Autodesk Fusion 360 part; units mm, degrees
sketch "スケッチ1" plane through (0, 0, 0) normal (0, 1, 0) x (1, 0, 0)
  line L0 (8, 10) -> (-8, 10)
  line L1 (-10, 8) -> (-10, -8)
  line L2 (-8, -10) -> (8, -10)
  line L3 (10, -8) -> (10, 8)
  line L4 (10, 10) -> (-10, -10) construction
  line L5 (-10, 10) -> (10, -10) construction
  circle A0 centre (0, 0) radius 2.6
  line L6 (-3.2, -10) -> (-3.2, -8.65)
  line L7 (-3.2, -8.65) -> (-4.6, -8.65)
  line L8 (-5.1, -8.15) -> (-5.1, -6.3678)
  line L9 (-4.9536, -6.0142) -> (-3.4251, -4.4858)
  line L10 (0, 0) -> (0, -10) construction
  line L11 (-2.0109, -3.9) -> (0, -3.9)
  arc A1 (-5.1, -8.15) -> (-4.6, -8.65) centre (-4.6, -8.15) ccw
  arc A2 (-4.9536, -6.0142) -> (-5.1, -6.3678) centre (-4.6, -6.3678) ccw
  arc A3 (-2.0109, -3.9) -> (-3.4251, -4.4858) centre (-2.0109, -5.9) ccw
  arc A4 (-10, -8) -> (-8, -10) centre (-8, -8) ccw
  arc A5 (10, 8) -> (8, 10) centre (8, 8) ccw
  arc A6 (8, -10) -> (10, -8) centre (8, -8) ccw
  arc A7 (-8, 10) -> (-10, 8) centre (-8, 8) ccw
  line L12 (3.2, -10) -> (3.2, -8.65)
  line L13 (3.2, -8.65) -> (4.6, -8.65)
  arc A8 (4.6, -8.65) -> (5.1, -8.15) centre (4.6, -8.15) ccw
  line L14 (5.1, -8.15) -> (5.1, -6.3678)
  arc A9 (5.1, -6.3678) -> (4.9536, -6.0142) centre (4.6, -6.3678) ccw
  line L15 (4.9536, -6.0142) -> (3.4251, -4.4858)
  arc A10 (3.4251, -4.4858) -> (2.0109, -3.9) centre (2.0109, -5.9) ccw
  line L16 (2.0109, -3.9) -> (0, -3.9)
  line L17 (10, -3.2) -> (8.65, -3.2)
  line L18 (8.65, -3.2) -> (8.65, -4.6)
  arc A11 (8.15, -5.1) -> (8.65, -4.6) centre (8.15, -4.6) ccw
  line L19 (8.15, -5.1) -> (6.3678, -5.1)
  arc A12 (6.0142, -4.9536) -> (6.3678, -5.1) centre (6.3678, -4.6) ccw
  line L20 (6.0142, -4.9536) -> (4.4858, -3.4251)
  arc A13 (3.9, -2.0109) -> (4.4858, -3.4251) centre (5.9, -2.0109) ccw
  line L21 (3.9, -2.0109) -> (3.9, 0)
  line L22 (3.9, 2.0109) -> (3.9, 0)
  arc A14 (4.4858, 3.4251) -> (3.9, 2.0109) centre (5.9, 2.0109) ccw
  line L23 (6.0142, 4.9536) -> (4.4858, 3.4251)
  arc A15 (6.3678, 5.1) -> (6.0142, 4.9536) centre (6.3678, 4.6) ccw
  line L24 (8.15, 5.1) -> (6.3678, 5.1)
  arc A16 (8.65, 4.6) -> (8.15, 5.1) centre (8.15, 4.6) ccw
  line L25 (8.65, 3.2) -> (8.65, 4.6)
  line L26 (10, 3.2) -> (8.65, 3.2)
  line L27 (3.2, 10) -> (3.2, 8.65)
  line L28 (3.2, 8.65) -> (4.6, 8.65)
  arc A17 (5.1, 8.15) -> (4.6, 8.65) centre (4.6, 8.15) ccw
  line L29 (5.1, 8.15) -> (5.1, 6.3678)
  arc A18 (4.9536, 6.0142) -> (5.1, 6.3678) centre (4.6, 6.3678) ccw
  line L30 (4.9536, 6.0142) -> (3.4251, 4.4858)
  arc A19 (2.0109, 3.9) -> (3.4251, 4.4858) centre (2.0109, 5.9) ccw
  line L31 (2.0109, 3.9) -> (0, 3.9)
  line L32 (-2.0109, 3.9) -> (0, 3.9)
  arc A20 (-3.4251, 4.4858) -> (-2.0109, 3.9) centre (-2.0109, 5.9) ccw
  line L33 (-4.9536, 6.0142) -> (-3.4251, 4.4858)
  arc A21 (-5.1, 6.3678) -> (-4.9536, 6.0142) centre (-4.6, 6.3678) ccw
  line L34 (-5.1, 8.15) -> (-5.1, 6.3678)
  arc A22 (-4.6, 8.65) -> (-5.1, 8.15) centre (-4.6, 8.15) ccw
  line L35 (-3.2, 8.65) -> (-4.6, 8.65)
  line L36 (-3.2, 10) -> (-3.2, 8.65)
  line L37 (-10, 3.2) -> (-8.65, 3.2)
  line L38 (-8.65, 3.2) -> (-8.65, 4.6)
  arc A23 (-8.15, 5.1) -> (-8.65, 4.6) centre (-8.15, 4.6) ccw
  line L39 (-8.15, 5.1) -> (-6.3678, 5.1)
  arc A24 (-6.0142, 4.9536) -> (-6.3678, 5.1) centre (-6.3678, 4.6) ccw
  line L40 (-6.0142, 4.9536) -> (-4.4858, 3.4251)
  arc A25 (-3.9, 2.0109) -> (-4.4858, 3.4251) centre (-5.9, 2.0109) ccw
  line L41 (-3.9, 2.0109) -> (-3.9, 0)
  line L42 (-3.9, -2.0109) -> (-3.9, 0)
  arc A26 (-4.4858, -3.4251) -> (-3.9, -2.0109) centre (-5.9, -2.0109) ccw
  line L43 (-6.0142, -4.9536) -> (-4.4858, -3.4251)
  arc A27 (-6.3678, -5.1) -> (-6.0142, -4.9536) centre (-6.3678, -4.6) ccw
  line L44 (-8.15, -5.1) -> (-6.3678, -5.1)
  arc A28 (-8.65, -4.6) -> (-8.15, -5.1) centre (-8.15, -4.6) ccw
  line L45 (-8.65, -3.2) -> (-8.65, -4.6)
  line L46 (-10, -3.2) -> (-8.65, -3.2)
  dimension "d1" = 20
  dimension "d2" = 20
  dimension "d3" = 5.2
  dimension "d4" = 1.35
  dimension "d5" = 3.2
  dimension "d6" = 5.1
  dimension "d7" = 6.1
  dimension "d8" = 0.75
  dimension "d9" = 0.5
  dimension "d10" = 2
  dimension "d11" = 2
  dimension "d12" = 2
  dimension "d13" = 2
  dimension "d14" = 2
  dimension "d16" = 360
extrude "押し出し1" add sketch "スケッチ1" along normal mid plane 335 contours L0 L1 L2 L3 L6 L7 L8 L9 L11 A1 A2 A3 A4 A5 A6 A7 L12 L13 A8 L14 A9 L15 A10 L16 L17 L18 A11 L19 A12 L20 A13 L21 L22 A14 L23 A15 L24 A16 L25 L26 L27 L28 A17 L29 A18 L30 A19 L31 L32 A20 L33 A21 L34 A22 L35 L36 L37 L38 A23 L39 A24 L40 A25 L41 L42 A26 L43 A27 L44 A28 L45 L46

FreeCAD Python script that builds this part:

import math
import FreeCAD as App
import Part
import Sketcher

V = App.Vector

doc = App.newDocument("Part")
body = doc.addObject("PartDesign::Body", "Body")

# Sketch on XZ plane
sketch1 = body.newObject("Sketcher::SketchObject", "Sketch")
sketch1.AttachmentSupport = (doc.getObject("XZ_Plane"), [""])
sketch1.MapMode = "FlatFace"
sketch1.addGeometry(Part.ArcOfCircle(Part.Circle(V(8, -8, 0), V(0, 0, 1), 2), math.radians(-90), math.radians(0)), False)
sketch1.addGeometry(Part.LineSegment(V(8, -10, 0), V(3.2, -10, 0)), False)
sketch1.addGeometry(Part.LineSegment(V(3.2, -10, 0), V(3.2, -8.65, 0)), False)
sketch1.addGeometry(Part.LineSegment(V(3.2, -8.65, 0), V(4.6, -8.65, 0)), False)
sketch1.addGeometry(Part.ArcOfCircle(Part.Circle(V(4.6, -8.15, 0), V(0, 0, 1), 0.5), math.radians(-90), math.radians(0)), False)
sketch1.addGeometry(Part.LineSegment(V(5.1, -8.15, 0), V(5.1, -6.37, 0)), False)
sketch1.addGeometry(Part.ArcOfCircle(Part.Circle(V(4.6, -6.37, 0), V(0, 0, 1), 0.5), math.radians(0), math.radians(45)), False)
sketch1.addGeometry(Part.LineSegment(V(4.95, -6.01, 0), V(3.43, -4.49, 0)), False)
sketch1.addGeometry(Part.ArcOfCircle(Part.Circle(V(2.01, -5.9, 0), V(0, 0, 1), 2), math.radians(45), math.radians(90)), False)
sketch1.addGeometry(Part.LineSegment(V(2.01, -3.9, 0), V(-2.01, -3.9, 0)), False)
sketch1.addGeometry(Part.ArcOfCircle(Part.Circle(V(-2.01, -5.9, 0), V(0, 0, 1), 2), math.radians(90), math.radians(135)), False)
sketch1.addGeometry(Part.LineSegment(V(-3.43, -4.49, 0), V(-4.95, -6.01, 0)), False)
sketch1.addGeometry(Part.ArcOfCircle(Part.Circle(V(-4.6, -6.37, 0), V(0, 0, 1), 0.5), math.radians(135), math.radians(180)), False)
sketch1.addGeometry(Part.LineSegment(V(-5.1, -6.37, 0), V(-5.1, -8.15, 0)), False)
sketch1.addGeometry(Part.ArcOfCircle(Part.Circle(V(-4.6, -8.15, 0), V(0, 0, 1), 0.5), math.radians(180), math.radians(270)), False)
sketch1.addGeometry(Part.LineSegment(V(-4.6, -8.65, 0), V(-3.2, -8.65, 0)), False)
sketch1.addGeometry(Part.LineSegment(V(-3.2, -8.65, 0), V(-3.2, -10, 0)), False)
sketch1.addGeometry(Part.LineSegment(V(-3.2, -10, 0), V(-8, -10, 0)), False)
sketch1.addGeometry(Part.ArcOfCircle(Part.Circle(V(-8, -8, 0), V(0, 0, 1), 2), math.radians(180), math.radians(270)), False)
sketch1.addGeometry(Part.LineSegment(V(-10, -8, 0), V(-10, -3.2, 0)), False)
sketch1.addGeometry(Part.LineSegment(V(-10, -3.2, 0), V(-8.65, -3.2, 0)), False)
sketch1.addGeometry(Part.LineSegment(V(-8.65, -3.2, 0), V(-8.65, -4.6, 0)), False)
sketch1.addGeometry(Part.ArcOfCircle(Part.Circle(V(-8.15, -4.6, 0), V(0, 0, 1), 0.5), math.radians(180), math.radians(270)), False)
sketch1.addGeometry(Part.LineSegment(V(-8.15, -5.1, 0), V(-6.37, -5.1, 0)), False)
sketch1.addGeometry(Part.ArcOfCircle(Part.Circle(V(-6.37, -4.6, 0), V(0, 0, 1), 0.5), math.radians(-90), math.radians(-45)), False)
sketch1.addGeometry(Part.LineSegment(V(-6.01, -4.95, 0), V(-4.49, -3.43, 0)), False)
sketch1.addGeometry(Part.ArcOfCircle(Part.Circle(V(-5.9, -2.01, 0), V(0, 0, 1), 2), math.radians(-45), math.radians(0)), False)
sketch1.addGeometry(Part.LineSegment(V(-3.9, -2.01, 0), V(-3.9, 2.01, 0)), False)
sketch1.addGeometry(Part.ArcOfCircle(Part.Circle(V(-5.9, 2.01, 0), V(0, 0, 1), 2), math.radians(0), math.radians(45)), False)
sketch1.addGeometry(Part.LineSegment(V(-4.49, 3.43, 0), V(-6.01, 4.95, 0)), False)
sketch1.addGeometry(Part.ArcOfCircle(Part.Circle(V(-6.37, 4.6, 0), V(0, 0, 1), 0.5), math.radians(45), math.radians(90)), False)
sketch1.addGeometry(Part.LineSegment(V(-6.37, 5.1, 0), V(-8.15, 5.1, 0)), False)
sketch1.addGeometry(Part.ArcOfCircle(Part.Circle(V(-8.15, 4.6, 0), V(0, 0, 1), 0.5), math.radians(90), math.radians(180)), False)
sketch1.addGeometry(Part.LineSegment(V(-8.65, 4.6, 0), V(-8.65, 3.2, 0)), False)
sketch1.addGeometry(Part.LineSegment(V(-8.65, 3.2, 0), V(-10, 3.2, 0)), False)
sketch1.addGeometry(Part.LineSegment(V(-10, 3.2, 0), V(-10, 8, 0)), False)
sketch1.addGeometry(Part.ArcOfCircle(Part.Circle(V(-8, 8, 0), V(0, 0, 1), 2), math.radians(90), math.radians(180)), False)
sketch1.addGeometry(Part.LineSegment(V(-8, 10, 0), V(-3.2, 10, 0)), False)
sketch1.addGeometry(Part.LineSegment(V(-3.2, 10, 0), V(-3.2, 8.65, 0)), False)
sketch1.addGeometry(Part.LineSegment(V(-3.2, 8.65, 0), V(-4.6, 8.65, 0)), False)
sketch1.addGeometry(Part.ArcOfCircle(Part.Circle(V(-4.6, 8.15, 0), V(0, 0, 1), 0.5), math.radians(90), math.radians(180)), False)
sketch1.addGeometry(Part.LineSegment(V(-5.1, 8.15, 0), V(-5.1, 6.37, 0)), False)
sketch1.addGeometry(Part.ArcOfCircle(Part.Circle(V(-4.6, 6.37, 0), V(0, 0, 1), 0.5), math.radians(180), math.radians(225)), False)
sketch1.addGeometry(Part.LineSegment(V(-4.95, 6.01, 0), V(-3.43, 4.49, 0)), False)
sketch1.addGeometry(Part.ArcOfCircle(Part.Circle(V(-2.01, 5.9, 0), V(0, 0, 1), 2), math.radians(-135), math.radians(-90)), False)
sketch1.addGeometry(Part.LineSegment(V(-2.01, 3.9, 0), V(2.01, 3.9, 0)), False)
sketch1.addGeometry(Part.ArcOfCircle(Part.Circle(V(2.01, 5.9, 0), V(0, 0, 1), 2), math.radians(-90), math.radians(-45)), False)
sketch1.addGeometry(Part.LineSegment(V(3.43, 4.49, 0), V(4.95, 6.01, 0)), False)
sketch1.addGeometry(Part.ArcOfCircle(Part.Circle(V(4.6, 6.37, 0), V(0, 0, 1), 0.5), math.radians(-45), math.radians(0)), False)
sketch1.addGeometry(Part.LineSegment(V(5.1, 6.37, 0), V(5.1, 8.15, 0)), False)
sketch1.addGeometry(Part.ArcOfCircle(Part.Circle(V(4.6, 8.15, 0), V(0, 0, 1), 0.5), math.radians(0), math.radians(90)), False)
sketch1.addGeometry(Part.LineSegment(V(4.6, 8.65, 0), V(3.2, 8.65, 0)), False)
sketch1.addGeometry(Part.LineSegment(V(3.2, 8.65, 0), V(3.2, 10, 0)), False)
sketch1.addGeometry(Part.LineSegment(V(3.2, 10, 0), V(8, 10, 0)), False)
sketch1.addGeometry(Part.ArcOfCircle(Part.Circle(V(8, 8, 0), V(0, 0, 1), 2), math.radians(0), math.radians(90)), False)
sketch1.addGeometry(Part.LineSegment(V(10, 8, 0), V(10, 3.2, 0)), False)
sketch1.addGeometry(Part.LineSegment(V(10, 3.2, 0), V(8.65, 3.2, 0)), False)
sketch1.addGeometry(Part.LineSegment(V(8.65, 3.2, 0), V(8.65, 4.6, 0)), False)
sketch1.addGeometry(Part.ArcOfCircle(Part.Circle(V(8.15, 4.6, 0), V(0, 0, 1), 0.5), math.radians(0), math.radians(90)), False)
sketch1.addGeometry(Part.LineSegment(V(8.15, 5.1, 0), V(6.37, 5.1, 0)), False)
sketch1.addGeometry(Part.ArcOfCircle(Part.Circle(V(6.37, 4.6, 0), V(0, 0, 1), 0.5), math.radians(90), math.radians(135)), False)
sketch1.addGeometry(Part.LineSegment(V(6.01, 4.95, 0), V(4.49, 3.43, 0)), False)
sketch1.addGeometry(Part.ArcOfCircle(Part.Circle(V(5.9, 2.01, 0), V(0, 0, 1), 2), math.radians(135), math.radians(180)), False)
sketch1.addGeometry(Part.LineSegment(V(3.9, 2.01, 0), V(3.9, -2.01, 0)), False)
sketch1.addGeometry(Part.ArcOfCircle(Part.Circle(V(5.9, -2.01, 0), V(0, 0, 1), 2), math.radians(180), math.radians(225)), False)
sketch1.addGeometry(Part.LineSegment(V(4.49, -3.43, 0), V(6.01, -4.95, 0)), False)
sketch1.addGeometry(Part.ArcOfCircle(Part.Circle(V(6.37, -4.6, 0), V(0, 0, 1), 0.5), math.radians(-135), math.radians(-90)), False)
sketch1.addGeometry(Part.LineSegment(V(6.37, -5.1, 0), V(8.15, -5.1, 0)), False)
sketch1.addGeometry(Part.ArcOfCircle(Part.Circle(V(8.15, -4.6, 0), V(0, 0, 1), 0.5), math.radians(-90), math.radians(0)), False)
sketch1.addGeometry(Part.LineSegment(V(8.65, -4.6, 0), V(8.65, -3.2, 0)), False)
sketch1.addGeometry(Part.LineSegment(V(8.65, -3.2, 0), V(10, -3.2, 0)), False)
sketch1.addGeometry(Part.LineSegment(V(10, -3.2, 0), V(10, -8, 0)), False)
sketch1.addGeometry(Part.Circle(V(0, 0, 0), V(0, 0, 1), 2.6), False)
sketch1.addConstraint(Sketcher.Constraint("Tangent", 0, 1, 1, 1))
sketch1.addConstraint(Sketcher.Constraint("Coincident", 1, 2, 2, 1))
sketch1.addConstraint(Sketcher.Constraint("Coincident", 2, 2, 3, 1))
sketch1.addConstraint(Sketcher.Constraint("Tangent", 3, 2, 4, 1))
sketch1.addConstraint(Sketcher.Constraint("Tangent", 4, 2, 5, 1))
sketch1.addConstraint(Sketcher.Constraint("Tangent", 5, 2, 6, 1))
sketch1.addConstraint(Sketcher.Constraint("Tangent", 6, 2, 7, 1))
sketch1.addConstraint(Sketcher.Constraint("Tangent", 7, 2, 8, 1))
sketch1.addConstraint(Sketcher.Constraint("Tangent", 8, 2, 9, 1))
sketch1.addConstraint(Sketcher.Constraint("Tangent", 9, 2, 10, 1))
sketch1.addConstraint(Sketcher.Constraint("Tangent", 10, 2, 11, 1))
sketch1.addConstraint(Sketcher.Constraint("Tangent", 11, 2, 12, 1))
sketch1.addConstraint(Sketcher.Constraint("Tangent", 12, 2, 13, 1))
sketch1.addConstraint(Sketcher.Constraint("Tangent", 13, 2, 14, 1))
sketch1.addConstraint(Sketcher.Constraint("Tangent", 14, 2, 15, 1))
sketch1.addConstraint(Sketcher.Constraint("Coincident", 15, 2, 16, 1))
sketch1.addConstraint(Sketcher.Constraint("Coincident", 16, 2, 17, 1))
sketch1.addConstraint(Sketcher.Constraint("Tangent", 17, 2, 18, 2))
sketch1.addConstraint(Sketcher.Constraint("Tangent", 18, 1, 19, 1))
sketch1.addConstraint(Sketcher.Constraint("Coincident", 19, 2, 20, 1))
sketch1.addConstraint(Sketcher.Constraint("Coincident", 20, 2, 21, 1))
sketch1.addConstraint(Sketcher.Constraint("Tangent", 21, 2, 22, 1))
sketch1.addConstraint(Sketcher.Constraint("Tangent", 22, 2, 23, 1))
sketch1.addConstraint(Sketcher.Constraint("Tangent", 23, 2, 24, 1))
sketch1.addConstraint(Sketcher.Constraint("Tangent", 24, 2, 25, 1))
sketch1.addConstraint(Sketcher.Constraint("Tangent", 25, 2, 26, 1))
sketch1.addConstraint(Sketcher.Constraint("Tangent", 26, 2, 27, 1))
sketch1.addConstraint(Sketcher.Constraint("Tangent", 27, 2, 28, 1))
sketch1.addConstraint(Sketcher.Constraint("Tangent", 28, 2, 29, 1))
sketch1.addConstraint(Sketcher.Constraint("Tangent", 29, 2, 30, 1))
sketch1.addConstraint(Sketcher.Constraint("Tangent", 30, 2, 31, 1))
sketch1.addConstraint(Sketcher.Constraint("Tangent", 31, 2, 32, 1))
sketch1.addConstraint(Sketcher.Constraint("Tangent", 32, 2, 33, 1))
sketch1.addConstraint(Sketcher.Constraint("Coincident", 33, 2, 34, 1))
sketch1.addConstraint(Sketcher.Constraint("Coincident", 34, 2, 35, 1))
sketch1.addConstraint(Sketcher.Constraint("Tangent", 35, 2, 36, 2))
sketch1.addConstraint(Sketcher.Constraint("Tangent", 36, 1, 37, 1))
sketch1.addConstraint(Sketcher.Constraint("Coincident", 37, 2, 38, 1))
sketch1.addConstraint(Sketcher.Constraint("Coincident", 38, 2, 39, 1))
sketch1.addConstraint(Sketcher.Constraint("Tangent", 39, 2, 40, 1))
sketch1.addConstraint(Sketcher.Constraint("Tangent", 40, 2, 41, 1))
sketch1.addConstraint(Sketcher.Constraint("Tangent", 41, 2, 42, 1))
sketch1.addConstraint(Sketcher.Constraint("Tangent", 42, 2, 43, 1))
sketch1.addConstraint(Sketcher.Constraint("Tangent", 43, 2, 44, 1))
sketch1.addConstraint(Sketcher.Constraint("Tangent", 44, 2, 45, 1))
sketch1.addConstraint(Sketcher.Constraint("Tangent", 45, 2, 46, 1))
sketch1.addConstraint(Sketcher.Constraint("Tangent", 46, 2, 47, 1))
sketch1.addConstraint(Sketcher.Constraint("Tangent", 47, 2, 48, 1))
sketch1.addConstraint(Sketcher.Constraint("Tangent", 48, 2, 49, 1))
sketch1.addConstraint(Sketcher.Constraint("Tangent", 49, 2, 50, 1))
sketch1.addConstraint(Sketcher.Constraint("Tangent", 50, 2, 51, 1))
sketch1.addConstraint(Sketcher.Constraint("Coincident", 51, 2, 52, 1))
sketch1.addConstraint(Sketcher.Constraint("Coincident", 52, 2, 53, 1))
sketch1.addConstraint(Sketcher.Constraint("Tangent", 53, 2, 54, 2))
sketch1.addConstraint(Sketcher.Constraint("Tangent", 54, 1, 55, 1))
sketch1.addConstraint(Sketcher.Constraint("Coincident", 55, 2, 56, 1))
sketch1.addConstraint(Sketcher.Constraint("Coincident", 56, 2, 57, 1))
sketch1.addConstraint(Sketcher.Constraint("Tangent", 57, 2, 58, 1))
sketch1.addConstraint(Sketcher.Constraint("Tangent", 58, 2, 59, 1))
sketch1.addConstraint(Sketcher.Constraint("Tangent", 59, 2, 60, 1))
sketch1.addConstraint(Sketcher.Constraint("Tangent", 60, 2, 61, 1))
sketch1.addConstraint(Sketcher.Constraint("Tangent", 61, 2, 62, 1))
sketch1.addConstraint(Sketcher.Constraint("Tangent", 62, 2, 63, 1))
sketch1.addConstraint(Sketcher.Constraint("Tangent", 63, 2, 64, 1))
sketch1.addConstraint(Sketcher.Constraint("Tangent", 64, 2, 65, 1))
sketch1.addConstraint(Sketcher.Constraint("Tangent", 65, 2, 66, 1))
sketch1.addConstraint(Sketcher.Constraint("Tangent", 66, 2, 67, 1))
sketch1.addConstraint(Sketcher.Constraint("Tangent", 67, 2, 68, 1))
sketch1.addConstraint(Sketcher.Constraint("Tangent", 68, 2, 69, 1))
sketch1.addConstraint(Sketcher.Constraint("Coincident", 69, 2, 70, 1))
sketch1.addConstraint(Sketcher.Constraint("Coincident", 70, 2, 71, 1))
sketch1.addConstraint(Sketcher.Constraint("Tangent", 71, 2, 0, 2))
sketch1.addConstraint(Sketcher.Constraint("Horizontal", 1))
sketch1.addConstraint(Sketcher.Constraint("Vertical", 2))
sketch1.addConstraint(Sketcher.Constraint("Horizontal", 3))
sketch1.addConstraint(Sketcher.Constraint("Vertical", 5))
sketch1.addConstraint(Sketcher.Constraint("Horizontal", 9))
sketch1.addConstraint(Sketcher.Constraint("Vertical", 13))
sketch1.addConstraint(Sketcher.Constraint("Horizontal", 15))
sketch1.addConstraint(Sketcher.Constraint("Vertical", 16))
sketch1.addConstraint(Sketcher.Constraint("Horizontal", 17))
sketch1.addConstraint(Sketcher.Constraint("Vertical", 19))
sketch1.addConstraint(Sketcher.Constraint("Horizontal", 20))
sketch1.addConstraint(Sketcher.Constraint("Vertical", 21))
sketch1.addConstraint(Sketcher.Constraint("Horizontal", 23))
sketch1.addConstraint(Sketcher.Constraint("Vertical", 27))
sketch1.addConstraint(Sketcher.Constraint("Horizontal", 31))
sketch1.addConstraint(Sketcher.Constraint("Vertical", 33))
sketch1.addConstraint(Sketcher.Constraint("Horizontal", 34))
sketch1.addConstraint(Sketcher.Constraint("Vertical", 35))
sketch1.addConstraint(Sketcher.Constraint("Horizontal", 37))
sketch1.addConstraint(Sketcher.Constraint("Vertical", 38))
sketch1.addConstraint(Sketcher.Constraint("Horizontal", 39))
sketch1.addConstraint(Sketcher.Constraint("Vertical", 41))
sketch1.addConstraint(Sketcher.Constraint("Horizontal", 45))
sketch1.addConstraint(Sketcher.Constraint("Vertical", 49))
sketch1.addConstraint(Sketcher.Constraint("Horizontal", 51))
sketch1.addConstraint(Sketcher.Constraint("Vertical", 52))
sketch1.addConstraint(Sketcher.Constraint("Horizontal", 53))
sketch1.addConstraint(Sketcher.Constraint("Vertical", 55))
sketch1.addConstraint(Sketcher.Constraint("Horizontal", 56))
sketch1.addConstraint(Sketcher.Constraint("Vertical", 57))
sketch1.addConstraint(Sketcher.Constraint("Horizontal", 59))
sketch1.addConstraint(Sketcher.Constraint("Vertical", 63))
sketch1.addConstraint(Sketcher.Constraint("Horizontal", 67))
sketch1.addConstraint(Sketcher.Constraint("Vertical", 69))
sketch1.addConstraint(Sketcher.Constraint("Horizontal", 70))
sketch1.addConstraint(Sketcher.Constraint("Vertical", 71))
sketch1.addConstraint(Sketcher.Constraint("Coincident", 72, 3, -1, 1))
sketch1.addConstraint(Sketcher.Constraint("Equal", 4, 6))
sketch1.addConstraint(Sketcher.Constraint("Equal", 0, 8))
sketch1.addConstraint(Sketcher.Constraint("Equal", 8, 10))
sketch1.addConstraint(Sketcher.Constraint("Equal", 6, 12))
sketch1.addConstraint(Sketcher.Constraint("Equal", 12, 14))
sketch1.addConstraint(Sketcher.Constraint("Equal", 10, 18))
sketch1.addConstraint(Sketcher.Constraint("Equal", 14, 22))
sketch1.addConstraint(Sketcher.Constraint("Equal", 22, 24))
sketch1.addConstraint(Sketcher.Constraint("Equal", 18, 26))
sketch1.addConstraint(Sketcher.Constraint("Equal", 26, 28))
sketch1.addConstraint(Sketcher.Constraint("Equal", 24, 30))
sketch1.addConstraint(Sketcher.Constraint("Equal", 30, 32))
sketch1.addConstraint(Sketcher.Constraint("Equal", 28, 36))
sketch1.addConstraint(Sketcher.Constraint("Equal", 32, 40))
sketch1.addConstraint(Sketcher.Constraint("Equal", 40, 42))
sketch1.addConstraint(Sketcher.Constraint("Equal", 36, 44))
sketch1.addConstraint(Sketcher.Constraint("Equal", 44, 46))
sketch1.addConstraint(Sketcher.Constraint("Equal", 42, 48))
sketch1.addConstraint(Sketcher.Constraint("Equal", 48, 50))
sketch1.addConstraint(Sketcher.Constraint("Equal", 46, 54))
sketch1.addConstraint(Sketcher.Constraint("Equal", 50, 58))
sketch1.addConstraint(Sketcher.Constraint("Equal", 58, 60))
sketch1.addConstraint(Sketcher.Constraint("Equal", 54, 62))
sketch1.addConstraint(Sketcher.Constraint("Equal", 62, 64))
sketch1.addConstraint(Sketcher.Constraint("Equal", 60, 66))
sketch1.addConstraint(Sketcher.Constraint("Equal", 66, 68))
sketch1.addConstraint(Sketcher.Constraint("Symmetric", 0, 3, 36, 3, -1, 1))
sketch1.addConstraint(Sketcher.Constraint("Symmetric", 4, 3, 40, 3, -1, 1))
sketch1.addConstraint(Sketcher.Constraint("Symmetric", 8, 3, 44, 3, -1, 1))
sketch1.addConstraint(Sketcher.Constraint("Symmetric", 12, 3, 48, 3, -1, 1))
sketch1.addConstraint(Sketcher.Constraint("Symmetric", 18, 3, 54, 3, -1, 1))
sketch1.addConstraint(Sketcher.Constraint("Symmetric", 22, 3, 58, 3, -1, 1))
sketch1.addConstraint(Sketcher.Constraint("Symmetric", 26, 3, 62, 3, -1, 1))
sketch1.addConstraint(Sketcher.Constraint("Symmetric", 30, 3, 66, 3, -1, 1))
sketch1.addConstraint(Sketcher.Constraint("Symmetric", 15, 2, 51, 2, -1, 1))
sketch1.addConstraint(Sketcher.Constraint("Symmetric", 33, 2, 69, 2, -1, 1))
sketch1.addConstraint(Sketcher.Constraint("Symmetric", 6, 3, 12, 3, -2))
sketch1.addConstraint(Sketcher.Constraint("Symmetric", 0, 3, 18, 3, -2))
sketch1.addConstraint(Sketcher.Constraint("Symmetric", 32, 3, 58, 3, -2))
sketch1.addConstraint(Sketcher.Constraint("Symmetric", 2, 2, 15, 2, -2))
sketch1.addConstraint(Sketcher.Constraint("Symmetric", 43, 2, 46, 2, -2))
sketch1.addConstraint(Sketcher.Constraint("Symmetric", 29, 2, 60, 2, -2))
sketch1.addConstraint(Sketcher.Constraint("Symmetric", 25, 2, 64, 2, -2))
sketch1.addConstraint(Sketcher.Constraint("Perpendicular", 7, 11))
sketch1.addConstraint(Sketcher.Constraint("Parallel", 11, 25))
sketch1.addConstraint(Sketcher.Constraint("Perpendicular", 25, 29))
sketch1.addConstraint(Sketcher.Constraint("Horizontal", 34, 2, 55, 2))
sketch1.addConstraint(Sketcher.Constraint("Horizontal", 20, 2, 69, 2))
sketch1.addConstraint(Sketcher.Constraint("Vertical", 16, 2, 37, 2))
sketch1.addConstraint(Sketcher.Constraint("Equal", 70, 2))
sketch1.addConstraint(Sketcher.Constraint("Equal", 67, 5))
sketch1.addConstraint(Sketcher.Constraint("Equal", 53, 19))
sketch1.addConstraint(Sketcher.Constraint("Equal", 51, 21))
sketch1.addConstraint(Sketcher.Constraint("Equal", 45, 27))
sketch1.addConstraint(Sketcher.Constraint("Equal", 11, 25))
sketch1.addConstraint(Sketcher.Constraint("Radius", 0, 2.0))
sketch1.addConstraint(Sketcher.Constraint("Diameter", 72, 5.2))
sketch1.addConstraint(Sketcher.Constraint("Radius", 4, 0.5))
sketch1.addConstraint(Sketcher.Constraint("DistanceX", 20, 1, 20, 2, 1.35))
sketch1.addConstraint(Sketcher.Constraint("DistanceX", -1, 1, 1, 2, 3.2))
sketch1.addConstraint(Sketcher.Constraint("DistanceX", -1, 1, 4, 2, 5.1))
sketch1.addConstraint(Sketcher.Constraint("DistanceX", 1, 2, 1, 1, 4.8))
sketch1.addConstraint(Sketcher.Constraint("DistanceY", 8, 3, -1, 1, 5.9))
sketch1.addConstraint(Sketcher.Constraint("DistanceX", 9, 2, 9, 1, 4.0218))
pad1 = body.newObject("PartDesign::Pad", "Pad")
pad1.Profile = sketch1
pad1.Length = 335
pad1.Midplane = True

doc.recompute()
